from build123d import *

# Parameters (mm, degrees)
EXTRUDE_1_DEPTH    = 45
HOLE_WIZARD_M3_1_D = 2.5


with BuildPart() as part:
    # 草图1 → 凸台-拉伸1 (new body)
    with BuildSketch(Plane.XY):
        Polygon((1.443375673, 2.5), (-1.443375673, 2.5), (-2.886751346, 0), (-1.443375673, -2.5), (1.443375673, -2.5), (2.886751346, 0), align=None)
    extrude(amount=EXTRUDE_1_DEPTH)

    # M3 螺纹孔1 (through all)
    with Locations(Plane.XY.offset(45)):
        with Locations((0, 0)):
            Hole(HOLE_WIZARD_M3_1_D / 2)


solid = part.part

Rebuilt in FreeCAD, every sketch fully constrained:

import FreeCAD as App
import Part
import Sketcher
from FreeCAD import Vector
Q = App.Units.Quantity


def add_polygon(sketch, points):
    """Adds a closed chain of lines whose ends are joined by coincident constraints."""
    first, n = sketch.GeometryCount, len(points)
    for a, b in zip(points, points[1:] + points[:1]):
        sketch.addGeometry(Part.LineSegment(App.Vector(*a, 0), App.Vector(*b, 0)), False)
    for i in range(n):
        sketch.addConstraint(Sketcher.Constraint("Coincident", first + i, 2, first + (i + 1) % n, 1))

doc = App.newDocument("Part")
body = doc.addObject("PartDesign::Body", "Body")

sketch1 = body.newObject("Sketcher::SketchObject", "Sketch")
sketch1.AttachmentSupport = (doc.getObject("XY_Plane"), [""])
sketch1.MapMode = "FlatFace"
add_polygon(sketch1, [(1.4, 2.5), (-1.4, 2.5), (-2.9, 0), (-1.4, -2.5), (1.4, -2.5), (2.9, 0)])
sketch1.addConstraint([
    Sketcher.Constraint("Horizontal", 0),
    Sketcher.Constraint("Horizontal", 3),
    Sketcher.Constraint("Symmetric", 0, 2, 3, 2, -1, 1),
    Sketcher.Constraint("Symmetric", 1, 2, 4, 2, -1, 1),
    Sketcher.Constraint("PointOnObject", 1, 2, -1),
    Sketcher.Constraint("Parallel", 2, 5),
    Sketcher.Constraint("Vertical", 0, 2, 2, 2),
    Sketcher.Constraint("Angle", 1, Q("-120 deg")),
    Sketcher.Constraint("DistanceY", 2, 2, 0, 2, Q("5 mm")),
    Sketcher.Constraint("DistanceX", 0, 2, 0, 1, Q("2.886751 mm")),
])
pad1 = body.newObject("PartDesign::Pad", "Pad")
pad1.Profile = sketch1
pad1.Length = 45

sketch2 = body.newObject("Sketcher::SketchObject", "Sketch001")
sketch2.AttachmentSupport = (doc.getObject("XY_Plane"), [""])
sketch2.MapMode = "FlatFace"
sketch2.AttachmentOffset = App.Placement(Vector(0, 0, 45), App.Rotation())
sketch2.addGeometry(Part.Circle(Vector(0, 0, 0), Vector(0, 0, 1), 1.2), False)
sketch2.addConstraint([
    Sketcher.Constraint("Coincident", 0, 3, -1, 1),
    Sketcher.Constraint("Diameter", 0, Q("2.5 mm")),
])
doc.recompute()
hole = body.newObject("PartDesign::Hole", "Hole")
hole.Profile = sketch2
hole.ThreadType = "None"
hole.Diameter = 2.5
hole.DepthType = "ThroughAll"

doc.recompute()
